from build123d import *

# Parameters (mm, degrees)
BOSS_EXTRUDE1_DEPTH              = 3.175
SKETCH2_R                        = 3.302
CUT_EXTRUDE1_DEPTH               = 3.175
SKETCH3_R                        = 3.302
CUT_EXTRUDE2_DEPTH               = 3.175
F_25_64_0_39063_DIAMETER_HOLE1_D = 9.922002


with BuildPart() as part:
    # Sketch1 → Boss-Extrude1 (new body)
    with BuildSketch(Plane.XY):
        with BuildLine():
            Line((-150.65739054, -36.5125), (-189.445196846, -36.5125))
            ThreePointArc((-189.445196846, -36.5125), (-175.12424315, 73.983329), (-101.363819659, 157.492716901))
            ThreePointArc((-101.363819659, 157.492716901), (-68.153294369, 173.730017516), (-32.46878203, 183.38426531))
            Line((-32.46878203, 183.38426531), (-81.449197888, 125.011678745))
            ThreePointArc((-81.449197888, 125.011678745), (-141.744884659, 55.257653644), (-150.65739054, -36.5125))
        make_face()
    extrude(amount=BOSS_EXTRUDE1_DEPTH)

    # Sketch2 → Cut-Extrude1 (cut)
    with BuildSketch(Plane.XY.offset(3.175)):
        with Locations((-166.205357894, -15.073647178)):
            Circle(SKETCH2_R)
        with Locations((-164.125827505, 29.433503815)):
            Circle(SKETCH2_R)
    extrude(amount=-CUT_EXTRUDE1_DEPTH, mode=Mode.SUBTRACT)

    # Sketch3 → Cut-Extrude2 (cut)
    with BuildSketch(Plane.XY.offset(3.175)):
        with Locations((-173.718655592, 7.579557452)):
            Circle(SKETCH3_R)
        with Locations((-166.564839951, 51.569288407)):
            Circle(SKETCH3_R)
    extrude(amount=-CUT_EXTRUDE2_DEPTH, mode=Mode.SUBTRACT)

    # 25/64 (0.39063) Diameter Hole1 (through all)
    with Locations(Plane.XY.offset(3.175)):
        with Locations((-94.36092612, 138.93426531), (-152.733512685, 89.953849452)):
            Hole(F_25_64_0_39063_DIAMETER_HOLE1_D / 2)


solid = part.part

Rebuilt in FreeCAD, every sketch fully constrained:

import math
import FreeCAD as App
import Part
import Sketcher

V = App.Vector
Q = App.Units.Quantity

doc = App.newDocument("Part")
body = doc.addObject("PartDesign::Body", "Body")

sketch1 = body.newObject("Sketcher::SketchObject", "Sketch")
sketch1.AttachmentSupport = (doc.getObject("XY_Plane"), [""])
sketch1.MapMode = "FlatFace"
sketch1.addGeometry(Part.LineSegment(V(-189.445197, -36.5125, 0), V(-150.657391, -36.5125, 0)), False)
sketch1.addGeometry(Part.ArcOfCircle(Part.Circle(V(-1.960372, -4.635754, 0), V(0, 0, 1), 152.07541), math.radians(121.513099), math.radians(192.099583)), False)
sketch1.addGeometry(Part.LineSegment(V(-81.449198, 125.011679, 0), V(-32.468782, 183.384265, 0)), False)
sketch1.addGeometry(Part.ArcOfCircle(Part.Circle(V(0.207299, -8.171257, 0), V(0, 0, 1), 194.322527), math.radians(99.680497), math.radians(121.513099)), False)
sketch1.addGeometry(Part.ArcOfCircle(Part.Circle(V(-1.960372, -4.635754, 0), V(0, 0, 1), 190.17541), math.radians(121.513099), math.radians(189.64933)), False)
sketch1.addConstraint(Sketcher.Constraint("Coincident", 0, 2, 1, 2))
sketch1.addConstraint(Sketcher.Constraint("Coincident", 1, 1, 2, 1))
sketch1.addConstraint(Sketcher.Constraint("Coincident", 2, 2, 3, 1))
sketch1.addConstraint(Sketcher.Constraint("Coincident", 3, 2, 4, 1))
sketch1.addConstraint(Sketcher.Constraint("Coincident", 4, 2, 0, 1))
sketch1.addConstraint(Sketcher.Constraint("Horizontal", 0))
sketch1.addConstraint(Sketcher.Constraint("Coincident", 4, 3, 1, 3))
sketch1.addConstraint(Sketcher.Constraint("Distance", 2, Q("3 in")))
sketch1.addConstraint(Sketcher.Constraint("DistanceY", 0, 2, -1, 1, Q("1.4375 in")))
sketch1.addConstraint(Sketcher.Constraint("Radius", 1, Q("152.07541 mm")))
sketch1.addConstraint(Sketcher.Constraint("Radius", 4, Q("190.17541 mm")))
sketch1.addConstraint(Sketcher.Constraint("Radius", 3, Q("194.322527 mm")))
sketch1.addConstraint(Sketcher.Constraint("DistanceX", -1, 1, 3, 3, Q("0.207299 mm")))
sketch1.addConstraint(Sketcher.Constraint("DistanceX", 4, 2, 1, 1, Q("107.995999 mm")))
sketch1.addConstraint(Sketcher.Constraint("DistanceX", 0, 1, 0, 2, Q("38.787806 mm")))
sketch1.addConstraint(Sketcher.Constraint("DistanceX", 0, 2, -1, 1, Q("150.657391 mm")))
sketch1.addConstraint(Sketcher.Constraint("DistanceX", 3, 2, -1, 1, Q("101.36382 mm")))
pad1 = body.newObject("PartDesign::Pad", "Pad")
pad1.Profile = sketch1
pad1.Length = Q("0.125 in")

sketch2 = body.newObject("Sketcher::SketchObject", "Sketch001")
sketch2.AttachmentSupport = (doc.getObject("XY_Plane"), [""])
sketch2.MapMode = "FlatFace"
sketch2.AttachmentOffset = App.Placement(V(0, 0, 0.125 * 25.4), App.Rotation())
sketch2.addGeometry(Part.Circle(V(-166.205358, -15.073647, 0), V(0, 0, 1), 3.302), False)
sketch2.addGeometry(Part.Circle(V(-164.125828, 29.433504, 0), V(0, 0, 1), 3.302), False)
sketch2.addConstraint(Sketcher.Constraint("Equal", 0, 1))
sketch2.addConstraint(Sketcher.Constraint("Diameter", 0, Q("0.26 in")))
sketch2.addConstraint(Sketcher.Constraint("DistanceX", 0, 3, 1, 3, Q("2.07953 mm")))
sketch2.addConstraint(Sketcher.Constraint("DistanceY", 0, 3, 1, 3, Q("44.507151 mm")))
sketch2.addConstraint(Sketcher.Constraint("DistanceX", 0, 3, -1, 1, Q("166.205358 mm")))
sketch2.addConstraint(Sketcher.Constraint("DistanceY", 0, 3, -1, 1, Q("15.073647 mm")))
pocket1 = body.newObject("PartDesign::Pocket", "Pocket")
pocket1.Profile = sketch2
pocket1.Length = Q("0.125 in")

sketch3 = body.newObject("Sketcher::SketchObject", "Sketch002")
sketch3.AttachmentSupport = (doc.getObject("XY_Plane"), [""])
sketch3.MapMode = "FlatFace"
sketch3.AttachmentOffset = App.Placement(V(0, 0, 0.125 * 25.4), App.Rotation())
sketch3.addGeometry(Part.Circle(V(-173.718656, 7.579557, 0), V(0, 0, 1), 3.302), False)
sketch3.addGeometry(Part.Circle(V(-166.56484, 51.569288, 0), V(0, 0, 1), 3.302), False)
sketch3.addConstraint(Sketcher.Constraint("Equal", 0, 1))
sketch3.addConstraint(Sketcher.Constraint("Diameter", 0, Q("0.26 in")))
sketch3.addConstraint(Sketcher.Constraint("DistanceX", 1, 3, -1, 1, Q("166.56484 mm")))
sketch3.addConstraint(Sketcher.Constraint("DistanceY", -1, 1, 1, 3, Q("51.569288 mm")))
sketch3.addConstraint(Sketcher.Constraint("DistanceY", 0, 3, 1, 3, Q("43.989731 mm")))
sketch3.addConstraint(Sketcher.Constraint("DistanceX", 0, 3, -1, 1, Q("173.718656 mm")))
pocket2 = body.newObject("PartDesign::Pocket", "Pocket001")
pocket2.Profile = sketch3
pocket2.Length = Q("0.125 in")

sketch4 = body.newObject("Sketcher::SketchObject", "Sketch003")
sketch4.AttachmentSupport = (doc.getObject("XY_Plane"), [""])
sketch4.MapMode = "FlatFace"
sketch4.AttachmentOffset = App.Placement(V(0, 0, 0.125 * 25.4), App.Rotation())
sketch4.addGeometry(Part.Circle(V(-94.360926, 138.934265, 0), V(0, 0, 1), 4.961001), False)
sketch4.addGeometry(Part.Circle(V(-152.733513, 89.953849, 0), V(0, 0, 1), 4.961001), False)
sketch4.addConstraint(Sketcher.Constraint("Equal", 0, 1))
sketch4.addConstraint(Sketcher.Constraint("Diameter", 0, Q("9.922002 mm")))
sketch4.addConstraint(Sketcher.Constraint("DistanceY", -1, 1, 1, 3, Q("89.953849 mm")))
sketch4.addConstraint(Sketcher.Constraint("DistanceX", 0, 3, -1, 1, Q("94.360926 mm")))
sketch4.addConstraint(Sketcher.Constraint("DistanceY", -1, 1, 0, 3, Q("138.934265 mm")))
sketch4.addConstraint(Sketcher.Constraint("DistanceX", 1, 3, -1, 1, Q("152.733513 mm")))
doc.recompute()
hole = body.newObject("PartDesign::Hole", "Hole")
hole.Profile = sketch4
hole.ThreadType = "None"
hole.Diameter = 9.922002
hole.DepthType = "ThroughAll"

doc.recompute()
